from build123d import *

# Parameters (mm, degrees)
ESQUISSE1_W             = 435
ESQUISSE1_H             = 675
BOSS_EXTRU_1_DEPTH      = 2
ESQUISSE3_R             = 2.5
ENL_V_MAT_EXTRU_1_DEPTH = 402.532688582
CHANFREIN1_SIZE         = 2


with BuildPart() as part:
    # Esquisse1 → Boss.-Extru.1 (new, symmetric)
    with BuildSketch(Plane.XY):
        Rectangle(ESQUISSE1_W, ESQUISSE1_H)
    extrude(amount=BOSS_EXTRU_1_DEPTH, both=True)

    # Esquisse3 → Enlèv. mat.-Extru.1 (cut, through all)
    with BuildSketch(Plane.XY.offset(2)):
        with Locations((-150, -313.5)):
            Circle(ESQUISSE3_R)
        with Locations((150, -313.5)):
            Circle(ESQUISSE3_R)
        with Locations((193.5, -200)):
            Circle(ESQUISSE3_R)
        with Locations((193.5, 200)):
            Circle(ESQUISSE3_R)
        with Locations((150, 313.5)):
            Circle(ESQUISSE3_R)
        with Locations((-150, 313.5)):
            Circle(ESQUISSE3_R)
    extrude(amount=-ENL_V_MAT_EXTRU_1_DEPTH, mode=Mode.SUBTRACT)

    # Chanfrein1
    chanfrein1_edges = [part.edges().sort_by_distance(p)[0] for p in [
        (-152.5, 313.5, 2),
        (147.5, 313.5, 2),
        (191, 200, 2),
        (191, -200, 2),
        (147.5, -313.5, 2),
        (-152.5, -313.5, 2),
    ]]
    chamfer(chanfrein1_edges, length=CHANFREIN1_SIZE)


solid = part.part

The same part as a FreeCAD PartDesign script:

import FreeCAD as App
import Part
import Sketcher
Q = App.Units.Quantity


def edges_at(feature, points):
    """Names of the edges that pass closest to the given points."""
    edges = feature.Shape.Edges
    near = lambda p: min(range(len(edges)), key=lambda i: edges[i].distToShape(Part.Vertex(*p))[0])
    return sorted({f"Edge{near(p) + 1}" for p in points})

doc = App.newDocument("Part")
params = doc.addObject("Spreadsheet::Sheet", "Params")
for row, (alias, value) in enumerate([
    ("sketch1_width", "435 mm"),
    ("sketch1_height", "675 mm"),
    ("pad1_length", "4 mm"),
    ("sketch2_diameter", "5 mm"),
    ("chamfer_size", "2 mm"),
], start=1):
    params.set(f"A{row}", alias)
    params.set(f"B{row}", "=" + value)
    params.setAlias(f"B{row}", alias)

body = doc.addObject("PartDesign::Body", "Body")

# Sketch on XY plane
sketch1 = doc.addObject("Sketcher::SketchObject", "Sketch")
body.addObject(sketch1)
sketch1.AttachmentSupport = (doc.XY_Plane, [""])
sketch1.MapMode = "FlatFace"
sketch1.addGeometry(Part.LineSegment(App.Vector(-217.5, 337.5, 0), App.Vector(-217.5, -337.5, 0)), False)
sketch1.addGeometry(Part.LineSegment(App.Vector(-217.5, -337.5, 0), App.Vector(217.5, -337.5, 0)), False)
sketch1.addGeometry(Part.LineSegment(App.Vector(217.5, -337.5, 0), App.Vector(217.5, 337.5, 0)), False)
sketch1.addGeometry(Part.LineSegment(App.Vector(217.5, 337.5, 0), App.Vector(-217.5, 337.5, 0)), False)
sketch1.addConstraint(Sketcher.Constraint("Coincident", 0, 2, 1, 1))
sketch1.addConstraint(Sketcher.Constraint("Coincident", 1, 2, 2, 1))
sketch1.addConstraint(Sketcher.Constraint("Coincident", 2, 2, 3, 1))
sketch1.addConstraint(Sketcher.Constraint("Coincident", 3, 2, 0, 1))
sketch1.addConstraint(Sketcher.Constraint("Vertical", 0))
sketch1.addConstraint(Sketcher.Constraint("Horizontal", 1))
sketch1.addConstraint(Sketcher.Constraint("Vertical", 2))
sketch1.addConstraint(Sketcher.Constraint("Horizontal", 3))
sketch1.addConstraint(Sketcher.Constraint("Symmetric", 0, 2, 2, 2, -1, 1))
sketch1.addConstraint(Sketcher.Constraint("DistanceX", 1, 1, 1, 2, Q("435 mm")))
sketch1.addConstraint(Sketcher.Constraint("DistanceY", 0, 2, 0, 1, Q("675 mm")))
sketch1.setExpression("Constraints[9]", "Params.sketch1_width")
sketch1.setExpression("Constraints[10]", "Params.sketch1_height")
pad1 = doc.addObject("PartDesign::Pad", "Pad")
body.addObject(pad1)
pad1.Profile = sketch1
pad1.setExpression("Length", "Params.pad1_length")
pad1.Midplane = True

# Sketch on XY plane
sketch2 = doc.addObject("Sketcher::SketchObject", "Sketch001")
body.addObject(sketch2)
sketch2.AttachmentSupport = (doc.XY_Plane, [""])
sketch2.MapMode = "FlatFace"
sketch2.AttachmentOffset = App.Placement(App.Vector(0, 0, 2), App.Rotation())
sketch2.addGeometry(Part.Circle(App.Vector(-150, -313.5, 0), App.Vector(0, 0, 1), 2.5), False)
sketch2.addGeometry(Part.Circle(App.Vector(150, -313.5, 0), App.Vector(0, 0, 1), 2.5), False)
sketch2.addGeometry(Part.Circle(App.Vector(193.5, -200, 0), App.Vector(0, 0, 1), 2.5), False)
sketch2.addGeometry(Part.Circle(App.Vector(193.5, 200, 0), App.Vector(0, 0, 1), 2.5), False)
sketch2.addGeometry(Part.Circle(App.Vector(150, 313.5, 0), App.Vector(0, 0, 1), 2.5), False)
sketch2.addGeometry(Part.Circle(App.Vector(-150, 313.5, 0), App.Vector(0, 0, 1), 2.5), False)
sketch2.addConstraint(Sketcher.Constraint("Equal", 0, 1))
sketch2.addConstraint(Sketcher.Constraint("Equal", 1, 2))
sketch2.addConstraint(Sketcher.Constraint("Equal", 2, 3))
sketch2.addConstraint(Sketcher.Constraint("Equal", 3, 4))
sketch2.addConstraint(Sketcher.Constraint("Equal", 4, 5))
sketch2.addConstraint(Sketcher.Constraint("Symmetric", 0, 3, 4, 3, -1, 1))
sketch2.addConstraint(Sketcher.Constraint("Symmetric", 1, 3, 5, 3, -1, 1))
sketch2.addConstraint(Sketcher.Constraint("Symmetric", 0, 3, 1, 3, -2))
sketch2.addConstraint(Sketcher.Constraint("Symmetric", 2, 3, 3, 3, -1))
sketch2.addConstraint(Sketcher.Constraint("Diameter", 0, Q("5 mm")))
sketch2.addConstraint(Sketcher.Constraint("DistanceX", 0, 3, -1, 1, Q("150 mm")))
sketch2.addConstraint(Sketcher.Constraint("DistanceY", 2, 3, -1, 1, Q("200 mm")))
sketch2.addConstraint(Sketcher.Constraint("DistanceY", 1, 3, 4, 3, Q("627 mm")))
sketch2.addConstraint(Sketcher.Constraint("DistanceX", -1, 1, 2, 3, Q("193.5 mm")))
sketch2.setExpression("Constraints[9]", "Params.sketch2_diameter")
pocket1 = doc.addObject("PartDesign::Pocket", "Pocket")
body.addObject(pocket1)
pocket1.Profile = sketch2
pocket1.Type = "ThroughAll"
doc.recompute()

chamfer = doc.addObject("PartDesign::Chamfer", "Chamfer")
body.addObject(chamfer)
chamfer.Base = (pocket1, edges_at(pocket1, [
    (-152.5, 313.5, 2),
    (147.5, 313.5, 2),
    (191, 200, 2),
    (191, -200, 2),
    (147.5, -313.5, 2),
    (-152.5, -313.5, 2),
]))
chamfer.setExpression("Size", "Params.chamfer_size")

doc.recompute()
